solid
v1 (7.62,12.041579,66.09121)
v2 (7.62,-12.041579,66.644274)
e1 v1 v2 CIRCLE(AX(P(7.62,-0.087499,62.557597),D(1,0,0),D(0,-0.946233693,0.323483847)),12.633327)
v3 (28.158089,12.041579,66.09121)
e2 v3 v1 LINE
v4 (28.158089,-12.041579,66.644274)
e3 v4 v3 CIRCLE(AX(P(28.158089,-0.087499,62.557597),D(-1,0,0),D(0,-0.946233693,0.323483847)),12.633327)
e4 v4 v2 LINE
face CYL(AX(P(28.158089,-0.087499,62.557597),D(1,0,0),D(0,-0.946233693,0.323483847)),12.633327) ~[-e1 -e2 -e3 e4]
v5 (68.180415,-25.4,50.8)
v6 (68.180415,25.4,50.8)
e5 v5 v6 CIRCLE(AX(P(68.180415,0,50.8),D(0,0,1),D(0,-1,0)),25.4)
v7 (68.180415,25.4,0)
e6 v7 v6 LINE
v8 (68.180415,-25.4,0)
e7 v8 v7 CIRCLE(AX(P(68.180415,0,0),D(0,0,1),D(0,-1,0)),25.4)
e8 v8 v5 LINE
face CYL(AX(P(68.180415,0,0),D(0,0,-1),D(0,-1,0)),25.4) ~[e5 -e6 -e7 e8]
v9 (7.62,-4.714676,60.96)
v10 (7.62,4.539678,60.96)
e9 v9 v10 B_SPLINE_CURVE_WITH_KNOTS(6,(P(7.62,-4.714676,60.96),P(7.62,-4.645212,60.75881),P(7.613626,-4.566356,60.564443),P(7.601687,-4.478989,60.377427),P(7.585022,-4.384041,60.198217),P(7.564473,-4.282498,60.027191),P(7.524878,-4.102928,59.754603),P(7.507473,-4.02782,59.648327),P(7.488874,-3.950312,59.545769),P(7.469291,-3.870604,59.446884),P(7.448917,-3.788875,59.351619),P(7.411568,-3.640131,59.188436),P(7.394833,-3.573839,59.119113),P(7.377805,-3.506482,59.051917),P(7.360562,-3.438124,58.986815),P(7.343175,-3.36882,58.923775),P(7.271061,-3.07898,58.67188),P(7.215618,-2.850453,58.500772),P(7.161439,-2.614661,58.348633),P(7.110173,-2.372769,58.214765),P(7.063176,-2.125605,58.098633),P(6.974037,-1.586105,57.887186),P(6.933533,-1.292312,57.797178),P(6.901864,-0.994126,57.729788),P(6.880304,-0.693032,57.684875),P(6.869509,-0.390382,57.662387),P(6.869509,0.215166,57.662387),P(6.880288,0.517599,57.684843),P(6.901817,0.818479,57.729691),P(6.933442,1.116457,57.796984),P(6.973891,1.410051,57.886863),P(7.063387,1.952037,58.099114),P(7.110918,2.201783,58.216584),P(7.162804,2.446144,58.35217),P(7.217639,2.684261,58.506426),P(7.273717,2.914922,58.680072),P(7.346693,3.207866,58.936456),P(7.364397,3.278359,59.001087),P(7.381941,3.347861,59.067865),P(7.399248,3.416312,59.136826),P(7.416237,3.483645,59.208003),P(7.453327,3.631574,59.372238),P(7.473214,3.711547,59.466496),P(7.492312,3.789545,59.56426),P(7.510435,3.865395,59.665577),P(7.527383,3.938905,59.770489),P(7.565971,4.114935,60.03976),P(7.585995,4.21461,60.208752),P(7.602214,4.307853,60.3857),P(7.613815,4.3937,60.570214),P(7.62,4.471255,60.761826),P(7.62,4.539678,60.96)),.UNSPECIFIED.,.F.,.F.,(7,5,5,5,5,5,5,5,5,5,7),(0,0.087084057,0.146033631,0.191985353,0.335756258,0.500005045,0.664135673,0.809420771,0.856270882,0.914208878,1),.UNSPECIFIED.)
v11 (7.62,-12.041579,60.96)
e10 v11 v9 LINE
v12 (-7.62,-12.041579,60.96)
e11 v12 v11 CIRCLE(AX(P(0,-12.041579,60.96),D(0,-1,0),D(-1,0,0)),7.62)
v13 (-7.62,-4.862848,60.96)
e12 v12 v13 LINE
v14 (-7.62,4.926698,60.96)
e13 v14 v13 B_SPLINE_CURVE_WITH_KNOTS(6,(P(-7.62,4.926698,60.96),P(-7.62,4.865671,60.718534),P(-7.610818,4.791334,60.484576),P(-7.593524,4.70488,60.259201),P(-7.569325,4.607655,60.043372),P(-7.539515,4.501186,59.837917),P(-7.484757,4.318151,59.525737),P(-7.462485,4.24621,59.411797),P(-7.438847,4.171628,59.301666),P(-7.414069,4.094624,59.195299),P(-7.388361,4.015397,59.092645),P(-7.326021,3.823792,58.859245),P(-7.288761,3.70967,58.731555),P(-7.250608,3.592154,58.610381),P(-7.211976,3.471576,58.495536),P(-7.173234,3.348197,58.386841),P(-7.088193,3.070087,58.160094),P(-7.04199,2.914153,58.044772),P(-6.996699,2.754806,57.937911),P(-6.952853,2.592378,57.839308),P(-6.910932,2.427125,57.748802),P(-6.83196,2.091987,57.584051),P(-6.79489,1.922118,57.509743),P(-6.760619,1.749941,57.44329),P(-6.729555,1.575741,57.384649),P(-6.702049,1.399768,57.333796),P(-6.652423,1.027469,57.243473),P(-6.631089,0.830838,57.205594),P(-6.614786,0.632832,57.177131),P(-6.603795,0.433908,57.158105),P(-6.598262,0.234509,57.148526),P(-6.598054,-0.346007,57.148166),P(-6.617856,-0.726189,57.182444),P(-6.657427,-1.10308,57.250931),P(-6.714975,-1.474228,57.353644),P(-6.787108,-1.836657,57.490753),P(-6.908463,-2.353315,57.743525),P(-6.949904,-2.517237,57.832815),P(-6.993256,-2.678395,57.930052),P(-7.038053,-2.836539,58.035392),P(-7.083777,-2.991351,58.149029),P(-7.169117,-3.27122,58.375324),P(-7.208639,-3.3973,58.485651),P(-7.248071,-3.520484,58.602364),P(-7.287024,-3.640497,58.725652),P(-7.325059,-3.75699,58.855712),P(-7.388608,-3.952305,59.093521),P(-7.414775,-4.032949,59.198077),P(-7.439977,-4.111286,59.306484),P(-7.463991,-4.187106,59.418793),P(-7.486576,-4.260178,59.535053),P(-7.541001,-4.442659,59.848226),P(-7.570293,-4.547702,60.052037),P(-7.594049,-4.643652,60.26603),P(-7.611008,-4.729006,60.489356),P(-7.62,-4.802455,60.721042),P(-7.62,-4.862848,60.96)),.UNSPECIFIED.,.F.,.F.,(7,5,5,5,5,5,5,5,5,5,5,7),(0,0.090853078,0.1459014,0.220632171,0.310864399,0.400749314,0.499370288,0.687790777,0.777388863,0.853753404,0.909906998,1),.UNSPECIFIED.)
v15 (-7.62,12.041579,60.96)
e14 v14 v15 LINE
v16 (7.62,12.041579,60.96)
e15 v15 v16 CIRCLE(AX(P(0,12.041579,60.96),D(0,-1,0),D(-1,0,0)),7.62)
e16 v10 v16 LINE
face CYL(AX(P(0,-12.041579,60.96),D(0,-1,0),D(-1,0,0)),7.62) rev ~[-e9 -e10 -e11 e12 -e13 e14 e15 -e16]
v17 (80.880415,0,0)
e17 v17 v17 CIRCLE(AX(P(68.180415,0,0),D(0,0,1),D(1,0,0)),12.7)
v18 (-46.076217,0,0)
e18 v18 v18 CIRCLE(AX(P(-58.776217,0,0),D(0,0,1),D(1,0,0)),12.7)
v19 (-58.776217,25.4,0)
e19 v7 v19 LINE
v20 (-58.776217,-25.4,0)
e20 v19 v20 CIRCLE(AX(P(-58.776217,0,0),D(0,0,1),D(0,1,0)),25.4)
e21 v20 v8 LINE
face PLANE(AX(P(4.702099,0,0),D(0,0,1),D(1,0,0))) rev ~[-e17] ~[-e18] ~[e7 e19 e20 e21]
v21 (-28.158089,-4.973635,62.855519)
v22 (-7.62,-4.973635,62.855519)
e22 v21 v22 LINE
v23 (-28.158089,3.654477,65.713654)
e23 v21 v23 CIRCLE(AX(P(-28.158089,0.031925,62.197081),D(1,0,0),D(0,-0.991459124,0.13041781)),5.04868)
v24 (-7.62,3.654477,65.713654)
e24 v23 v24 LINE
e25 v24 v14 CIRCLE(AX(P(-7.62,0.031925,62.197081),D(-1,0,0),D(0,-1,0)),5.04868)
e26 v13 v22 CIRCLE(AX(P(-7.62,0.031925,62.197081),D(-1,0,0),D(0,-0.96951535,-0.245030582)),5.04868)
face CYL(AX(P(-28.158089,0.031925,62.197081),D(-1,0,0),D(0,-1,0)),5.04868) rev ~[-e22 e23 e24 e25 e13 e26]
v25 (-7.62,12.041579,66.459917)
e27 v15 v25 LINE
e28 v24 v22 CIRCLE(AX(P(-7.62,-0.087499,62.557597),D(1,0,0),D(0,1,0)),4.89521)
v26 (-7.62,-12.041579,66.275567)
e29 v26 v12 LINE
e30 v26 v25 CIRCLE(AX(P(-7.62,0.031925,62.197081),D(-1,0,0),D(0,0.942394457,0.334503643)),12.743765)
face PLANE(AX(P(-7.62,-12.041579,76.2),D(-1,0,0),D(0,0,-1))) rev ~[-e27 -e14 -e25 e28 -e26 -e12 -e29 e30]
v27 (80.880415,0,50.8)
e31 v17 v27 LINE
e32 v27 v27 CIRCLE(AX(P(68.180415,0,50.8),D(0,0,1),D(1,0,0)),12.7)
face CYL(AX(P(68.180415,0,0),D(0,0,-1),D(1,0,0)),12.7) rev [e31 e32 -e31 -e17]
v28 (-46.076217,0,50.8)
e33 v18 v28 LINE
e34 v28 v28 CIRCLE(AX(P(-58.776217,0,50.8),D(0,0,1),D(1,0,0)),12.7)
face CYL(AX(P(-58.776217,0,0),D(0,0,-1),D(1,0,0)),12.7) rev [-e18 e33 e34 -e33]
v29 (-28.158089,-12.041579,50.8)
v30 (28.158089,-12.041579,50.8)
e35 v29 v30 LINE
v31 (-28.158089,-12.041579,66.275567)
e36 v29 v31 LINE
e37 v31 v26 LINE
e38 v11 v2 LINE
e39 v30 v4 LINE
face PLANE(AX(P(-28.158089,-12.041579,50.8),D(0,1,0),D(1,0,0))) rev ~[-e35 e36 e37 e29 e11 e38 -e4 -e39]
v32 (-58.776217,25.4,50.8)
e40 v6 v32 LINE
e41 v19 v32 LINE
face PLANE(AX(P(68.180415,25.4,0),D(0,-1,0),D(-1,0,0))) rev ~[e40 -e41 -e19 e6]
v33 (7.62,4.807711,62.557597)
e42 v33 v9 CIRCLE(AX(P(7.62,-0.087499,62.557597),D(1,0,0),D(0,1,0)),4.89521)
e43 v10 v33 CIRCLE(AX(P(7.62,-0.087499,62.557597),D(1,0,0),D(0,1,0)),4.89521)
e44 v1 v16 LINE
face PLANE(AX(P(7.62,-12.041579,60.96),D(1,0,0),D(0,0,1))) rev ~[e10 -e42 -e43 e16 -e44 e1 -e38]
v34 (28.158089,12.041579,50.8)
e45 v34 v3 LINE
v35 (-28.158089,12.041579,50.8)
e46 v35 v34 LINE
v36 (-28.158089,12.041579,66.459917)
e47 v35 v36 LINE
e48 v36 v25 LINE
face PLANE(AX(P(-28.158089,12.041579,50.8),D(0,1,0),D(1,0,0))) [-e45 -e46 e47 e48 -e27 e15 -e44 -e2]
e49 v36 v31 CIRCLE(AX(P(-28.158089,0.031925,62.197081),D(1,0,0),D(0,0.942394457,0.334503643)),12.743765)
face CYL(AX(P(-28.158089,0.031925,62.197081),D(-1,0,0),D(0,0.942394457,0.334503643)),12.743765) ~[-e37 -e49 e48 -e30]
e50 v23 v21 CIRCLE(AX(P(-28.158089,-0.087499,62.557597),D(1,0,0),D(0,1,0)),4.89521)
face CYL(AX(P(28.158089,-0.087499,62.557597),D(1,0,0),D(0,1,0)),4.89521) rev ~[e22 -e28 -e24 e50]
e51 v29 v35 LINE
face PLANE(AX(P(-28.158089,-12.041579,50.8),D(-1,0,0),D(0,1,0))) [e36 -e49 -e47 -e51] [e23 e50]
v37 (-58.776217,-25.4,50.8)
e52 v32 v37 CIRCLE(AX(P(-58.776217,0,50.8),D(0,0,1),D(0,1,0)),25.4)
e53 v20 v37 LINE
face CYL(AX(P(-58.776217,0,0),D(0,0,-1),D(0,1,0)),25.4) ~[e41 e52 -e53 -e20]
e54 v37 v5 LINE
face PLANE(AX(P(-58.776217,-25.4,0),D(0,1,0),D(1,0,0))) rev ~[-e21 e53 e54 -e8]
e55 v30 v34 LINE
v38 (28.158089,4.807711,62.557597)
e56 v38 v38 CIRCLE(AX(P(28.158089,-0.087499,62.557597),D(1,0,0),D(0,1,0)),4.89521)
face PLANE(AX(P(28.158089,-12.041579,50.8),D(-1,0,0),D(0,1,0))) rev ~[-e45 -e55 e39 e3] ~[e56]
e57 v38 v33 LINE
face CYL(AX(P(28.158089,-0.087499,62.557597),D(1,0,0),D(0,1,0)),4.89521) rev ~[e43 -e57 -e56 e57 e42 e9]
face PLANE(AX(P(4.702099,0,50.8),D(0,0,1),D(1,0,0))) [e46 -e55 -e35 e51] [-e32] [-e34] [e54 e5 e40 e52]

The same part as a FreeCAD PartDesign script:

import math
import FreeCAD as App
import Part
import Sketcher

V = App.Vector
Q = App.Units.Quantity


def add_polygon(sketch, points):
    """Adds a closed chain of lines whose ends are joined by coincident constraints."""
    first, n = sketch.GeometryCount, len(points)
    for a, b in zip(points, points[1:] + points[:1]):
        sketch.addGeometry(Part.LineSegment(App.Vector(*a, 0), App.Vector(*b, 0)), False)
    for i in range(n):
        sketch.addConstraint(Sketcher.Constraint("Coincident", first + i, 2, first + (i + 1) % n, 1))

doc = App.newDocument("Part")
body = doc.addObject("PartDesign::Body", "Body")

sketch1 = body.newObject("Sketcher::SketchObject", "Sketch")
sketch1.AttachmentSupport = (doc.getObject("XY_Plane"), [""])
sketch1.MapMode = "FlatFace"
sketch1.addGeometry([
    Part.LineSegment(V(68, 25, 0), V(-59, 25, 0)),
    Part.ArcOfCircle(Part.Circle(V(-59, 0, 0), V(0, 0, 1), 25), math.radians(90), math.radians(270)),
    Part.LineSegment(V(-59, -25, 0), V(68, -25, 0)),
    Part.ArcOfCircle(Part.Circle(V(68, 0, 0), V(0, 0, 1), 25), math.radians(-90), math.radians(90)),
    Part.Circle(V(-59, 0, 0), V(0, 0, 1), 13),
    Part.Circle(V(68, 0, 0), V(0, 0, 1), 13),
], False)
sketch1.addConstraint([
    Sketcher.Constraint("Tangent", 0, 2, 1, 1),
    Sketcher.Constraint("Tangent", 1, 2, 2, 1),
    Sketcher.Constraint("Tangent", 2, 2, 3, 1),
    Sketcher.Constraint("Tangent", 3, 2, 0, 1),
    Sketcher.Constraint("Horizontal", 0),
    Sketcher.Constraint("Horizontal", 2),
    Sketcher.Constraint("Coincident", 4, 3, 1, 3),
    Sketcher.Constraint("Coincident", 5, 3, 3, 3),
    Sketcher.Constraint("Equal", 4, 5),
    Sketcher.Constraint("PointOnObject", 1, 3, -1),
    Sketcher.Constraint("Diameter", 4, Q("1 in")),
    Sketcher.Constraint("Radius", 1, Q("1 in")),
    Sketcher.Constraint("DistanceX", 0, 2, 0, 1, 126.956632),
    Sketcher.Constraint("DistanceX", 1, 3, -1, 1, 58.776217),
])
pad1 = body.newObject("PartDesign::Pad", "Pad")
pad1.Profile = sketch1
pad1.Length = Q("2 in")

sketch2 = body.newObject("Sketcher::SketchObject", "Sketch001")
sketch2.AttachmentSupport = (doc.getObject("XY_Plane"), [""])
sketch2.MapMode = "FlatFace"
sketch2.AttachmentOffset = App.Placement(V(0, 0, 2 * 25.4), App.Rotation())
add_polygon(sketch2, [(-28, 12), (-28, -12), (28, -12), (28, 12)])
sketch2.addConstraint([
    Sketcher.Constraint("Vertical", 0),
    Sketcher.Constraint("Horizontal", 1),
    Sketcher.Constraint("Vertical", 2),
    Sketcher.Constraint("Horizontal", 3),
    Sketcher.Constraint("Symmetric", 0, 2, 2, 2, -1, 1),
    Sketcher.Constraint("DistanceY", 0, 2, 0, 1, 24.083158),
    Sketcher.Constraint("DistanceX", 1, 1, 1, 2, 56.316178),
])
pad2 = body.newObject("PartDesign::Pad", "Pad001")
pad2.Profile = sketch2
pad2.Length = Q("1 in")

sketch3 = body.newObject("Sketcher::SketchObject", "Sketch002")
sketch3.AttachmentSupport = (doc.getObject("XZ_Plane"), [""])
sketch3.MapMode = "FlatFace"
sketch3.AttachmentOffset = App.Placement(V(0, 0, 12.041579), App.Rotation())
sketch3.addGeometry([
    Part.LineSegment(V(-8, 76, 0), V(-8, 61, 0)),
    Part.ArcOfCircle(Part.Circle(V(0, 61, 0), V(0, 0, 1), 8), math.radians(180), math.radians(360)),
    Part.LineSegment(V(8, 61, 0), V(8, 76, 0)),
    Part.LineSegment(V(8, 76, 0), V(-8, 76, 0)),
], False)
sketch3.addConstraint([
    Sketcher.Constraint("Tangent", 0, 2, 1, 1),
    Sketcher.Constraint("Tangent", 1, 2, 2, 1),
    Sketcher.Constraint("Coincident", 2, 2, 3, 1),
    Sketcher.Constraint("Coincident", 3, 2, 0, 1),
    Sketcher.Constraint("Vertical", 0),
    Sketcher.Constraint("Vertical", 2),
    Sketcher.Constraint("Horizontal", 3),
    Sketcher.Constraint("PointOnObject", 1, 3, -2),
    Sketcher.Constraint("Equal", 3, 0),
    Sketcher.Constraint("Radius", 1, Q("0.3 in")),
    Sketcher.Constraint("DistanceY", -1, 1, 2, 2, Q("3 in")),
])
pocket1 = body.newObject("PartDesign::Pocket", "Pocket")
pocket1.Profile = sketch3
pocket1.Length = Q("1.36 in")

sketch4 = body.newObject("Sketcher::SketchObject", "Sketch003")
sketch4.AttachmentSupport = (doc.getObject("YZ_Plane"), [""])
sketch4.MapMode = "FlatFace"
sketch4.AttachmentOffset = App.Placement(V(0, 0, 28.158089), App.Rotation())
sketch4.addGeometry([
    Part.ArcOfCircle(Part.Circle(V(0, 63, 0), V(0, 0, 1), 13), math.radians(16), math.radians(161)),
    Part.LineSegment(V(12, 66, 0), V(12, 76, 0)),
    Part.LineSegment(V(12, 76, 0), V(-12, 76, 0)),
    Part.LineSegment(V(-12, 76, 0), V(-12, 67, 0)),
], False)
sketch4.addConstraint([
    Sketcher.Constraint("Coincident", 0, 1, 1, 1),
    Sketcher.Constraint("Coincident", 1, 2, 2, 1),
    Sketcher.Constraint("Coincident", 2, 2, 3, 1),
    Sketcher.Constraint("Coincident", 3, 2, 0, 2),
    Sketcher.Constraint("Vertical", 1),
    Sketcher.Constraint("Horizontal", 2),
    Sketcher.Constraint("Vertical", 3),
    Sketcher.Constraint("DistanceY", -1, 1, 1, 2, Q("3 in")),
    Sketcher.Constraint("Radius", 0, 12.633327),
    Sketcher.Constraint("DistanceX", 2, 2, 2, 1, 24.083158),
    Sketcher.Constraint("DistanceY", 1, 1, 1, 2, 10.10879),
    Sketcher.Constraint("DistanceX", 0, 3, -1, 1, 0.087499),
    Sketcher.Constraint("DistanceY", 3, 2, 3, 1, 9.555726),
])
pocket2 = body.newObject("PartDesign::Pocket", "Pocket001")
pocket2.Profile = sketch4
pocket2.Length = Q("1 in")

sketch5 = body.newObject("Sketcher::SketchObject", "Sketch004")
sketch5.AttachmentSupport = (doc.getObject("YZ_Plane"), [""])
sketch5.MapMode = "FlatFace"
sketch5.AttachmentOffset = App.Placement(V(0, 0, 28.158089), App.Rotation())
sketch5.addGeometry(Part.Circle(V(-0.1, 62.6, 0), V(0, 0, 1), 4.9), False)
sketch5.addConstraint([
    Sketcher.Constraint("Diameter", 0, 9.79042),
    Sketcher.Constraint("DistanceX", 0, 3, -1, 1, 0.087499),
    Sketcher.Constraint("DistanceY", -1, 1, 0, 3, 62.557597),
])
pocket3 = body.newObject("PartDesign::Pocket", "Pocket002")
pocket3.Profile = sketch5
pocket3.Length = Q("5 in")

sketch6 = body.newObject("Sketcher::SketchObject", "Sketch005")
sketch6.AttachmentSupport = (doc.getObject("YZ_Plane"), [""])
sketch6.MapMode = "FlatFace"
sketch6.AttachmentOffset = App.Placement(V(0, 0, -28.158089), App.Rotation())
sketch6.addGeometry([
    Part.ArcOfCircle(Part.Circle(V(0, 62, 0), V(0, 0, 1), 13), math.radians(20), math.radians(161)),
    Part.LineSegment(V(-12, 66, 0), V(-12, 76, 0)),
    Part.LineSegment(V(-12, 76, 0), V(12, 76, 0)),
    Part.LineSegment(V(12, 76, 0), V(12, 66, 0)),
    Part.Circle(V(0, 62, 0), V(0, 0, 1), 5),
], False)
sketch6.addConstraint([
    Sketcher.Constraint("Coincident", 0, 2, 1, 1),
    Sketcher.Constraint("Coincident", 1, 2, 2, 1),
    Sketcher.Constraint("Coincident", 2, 2, 3, 1),
    Sketcher.Constraint("Coincident", 3, 2, 0, 1),
    Sketcher.Constraint("Vertical", 1),
    Sketcher.Constraint("Horizontal", 2),
    Sketcher.Constraint("Vertical", 3),
    Sketcher.Constraint("Coincident", 4, 3, 0, 3),
    Sketcher.Constraint("DistanceY", -1, 1, 1, 2, Q("3 in")),
    Sketcher.Constraint("Diameter", 4, 10.09736),
    Sketcher.Constraint("Radius", 0, 12.743765),
    Sketcher.Constraint("DistanceX", 2, 1, 2, 2, 24.083158),
    Sketcher.Constraint("DistanceY", 1, 1, 1, 2, 9.924433),
    Sketcher.Constraint("DistanceY", 3, 2, 3, 1, 9.740083),
    Sketcher.Constraint("DistanceX", 0, 2, -1, 1, 12.041579),
])
pocket4 = body.newObject("PartDesign::Pocket", "Pocket003")
pocket4.Profile = sketch6
pocket4.Length = Q("1 in")
pocket4.Reversed = True

doc.recompute()
